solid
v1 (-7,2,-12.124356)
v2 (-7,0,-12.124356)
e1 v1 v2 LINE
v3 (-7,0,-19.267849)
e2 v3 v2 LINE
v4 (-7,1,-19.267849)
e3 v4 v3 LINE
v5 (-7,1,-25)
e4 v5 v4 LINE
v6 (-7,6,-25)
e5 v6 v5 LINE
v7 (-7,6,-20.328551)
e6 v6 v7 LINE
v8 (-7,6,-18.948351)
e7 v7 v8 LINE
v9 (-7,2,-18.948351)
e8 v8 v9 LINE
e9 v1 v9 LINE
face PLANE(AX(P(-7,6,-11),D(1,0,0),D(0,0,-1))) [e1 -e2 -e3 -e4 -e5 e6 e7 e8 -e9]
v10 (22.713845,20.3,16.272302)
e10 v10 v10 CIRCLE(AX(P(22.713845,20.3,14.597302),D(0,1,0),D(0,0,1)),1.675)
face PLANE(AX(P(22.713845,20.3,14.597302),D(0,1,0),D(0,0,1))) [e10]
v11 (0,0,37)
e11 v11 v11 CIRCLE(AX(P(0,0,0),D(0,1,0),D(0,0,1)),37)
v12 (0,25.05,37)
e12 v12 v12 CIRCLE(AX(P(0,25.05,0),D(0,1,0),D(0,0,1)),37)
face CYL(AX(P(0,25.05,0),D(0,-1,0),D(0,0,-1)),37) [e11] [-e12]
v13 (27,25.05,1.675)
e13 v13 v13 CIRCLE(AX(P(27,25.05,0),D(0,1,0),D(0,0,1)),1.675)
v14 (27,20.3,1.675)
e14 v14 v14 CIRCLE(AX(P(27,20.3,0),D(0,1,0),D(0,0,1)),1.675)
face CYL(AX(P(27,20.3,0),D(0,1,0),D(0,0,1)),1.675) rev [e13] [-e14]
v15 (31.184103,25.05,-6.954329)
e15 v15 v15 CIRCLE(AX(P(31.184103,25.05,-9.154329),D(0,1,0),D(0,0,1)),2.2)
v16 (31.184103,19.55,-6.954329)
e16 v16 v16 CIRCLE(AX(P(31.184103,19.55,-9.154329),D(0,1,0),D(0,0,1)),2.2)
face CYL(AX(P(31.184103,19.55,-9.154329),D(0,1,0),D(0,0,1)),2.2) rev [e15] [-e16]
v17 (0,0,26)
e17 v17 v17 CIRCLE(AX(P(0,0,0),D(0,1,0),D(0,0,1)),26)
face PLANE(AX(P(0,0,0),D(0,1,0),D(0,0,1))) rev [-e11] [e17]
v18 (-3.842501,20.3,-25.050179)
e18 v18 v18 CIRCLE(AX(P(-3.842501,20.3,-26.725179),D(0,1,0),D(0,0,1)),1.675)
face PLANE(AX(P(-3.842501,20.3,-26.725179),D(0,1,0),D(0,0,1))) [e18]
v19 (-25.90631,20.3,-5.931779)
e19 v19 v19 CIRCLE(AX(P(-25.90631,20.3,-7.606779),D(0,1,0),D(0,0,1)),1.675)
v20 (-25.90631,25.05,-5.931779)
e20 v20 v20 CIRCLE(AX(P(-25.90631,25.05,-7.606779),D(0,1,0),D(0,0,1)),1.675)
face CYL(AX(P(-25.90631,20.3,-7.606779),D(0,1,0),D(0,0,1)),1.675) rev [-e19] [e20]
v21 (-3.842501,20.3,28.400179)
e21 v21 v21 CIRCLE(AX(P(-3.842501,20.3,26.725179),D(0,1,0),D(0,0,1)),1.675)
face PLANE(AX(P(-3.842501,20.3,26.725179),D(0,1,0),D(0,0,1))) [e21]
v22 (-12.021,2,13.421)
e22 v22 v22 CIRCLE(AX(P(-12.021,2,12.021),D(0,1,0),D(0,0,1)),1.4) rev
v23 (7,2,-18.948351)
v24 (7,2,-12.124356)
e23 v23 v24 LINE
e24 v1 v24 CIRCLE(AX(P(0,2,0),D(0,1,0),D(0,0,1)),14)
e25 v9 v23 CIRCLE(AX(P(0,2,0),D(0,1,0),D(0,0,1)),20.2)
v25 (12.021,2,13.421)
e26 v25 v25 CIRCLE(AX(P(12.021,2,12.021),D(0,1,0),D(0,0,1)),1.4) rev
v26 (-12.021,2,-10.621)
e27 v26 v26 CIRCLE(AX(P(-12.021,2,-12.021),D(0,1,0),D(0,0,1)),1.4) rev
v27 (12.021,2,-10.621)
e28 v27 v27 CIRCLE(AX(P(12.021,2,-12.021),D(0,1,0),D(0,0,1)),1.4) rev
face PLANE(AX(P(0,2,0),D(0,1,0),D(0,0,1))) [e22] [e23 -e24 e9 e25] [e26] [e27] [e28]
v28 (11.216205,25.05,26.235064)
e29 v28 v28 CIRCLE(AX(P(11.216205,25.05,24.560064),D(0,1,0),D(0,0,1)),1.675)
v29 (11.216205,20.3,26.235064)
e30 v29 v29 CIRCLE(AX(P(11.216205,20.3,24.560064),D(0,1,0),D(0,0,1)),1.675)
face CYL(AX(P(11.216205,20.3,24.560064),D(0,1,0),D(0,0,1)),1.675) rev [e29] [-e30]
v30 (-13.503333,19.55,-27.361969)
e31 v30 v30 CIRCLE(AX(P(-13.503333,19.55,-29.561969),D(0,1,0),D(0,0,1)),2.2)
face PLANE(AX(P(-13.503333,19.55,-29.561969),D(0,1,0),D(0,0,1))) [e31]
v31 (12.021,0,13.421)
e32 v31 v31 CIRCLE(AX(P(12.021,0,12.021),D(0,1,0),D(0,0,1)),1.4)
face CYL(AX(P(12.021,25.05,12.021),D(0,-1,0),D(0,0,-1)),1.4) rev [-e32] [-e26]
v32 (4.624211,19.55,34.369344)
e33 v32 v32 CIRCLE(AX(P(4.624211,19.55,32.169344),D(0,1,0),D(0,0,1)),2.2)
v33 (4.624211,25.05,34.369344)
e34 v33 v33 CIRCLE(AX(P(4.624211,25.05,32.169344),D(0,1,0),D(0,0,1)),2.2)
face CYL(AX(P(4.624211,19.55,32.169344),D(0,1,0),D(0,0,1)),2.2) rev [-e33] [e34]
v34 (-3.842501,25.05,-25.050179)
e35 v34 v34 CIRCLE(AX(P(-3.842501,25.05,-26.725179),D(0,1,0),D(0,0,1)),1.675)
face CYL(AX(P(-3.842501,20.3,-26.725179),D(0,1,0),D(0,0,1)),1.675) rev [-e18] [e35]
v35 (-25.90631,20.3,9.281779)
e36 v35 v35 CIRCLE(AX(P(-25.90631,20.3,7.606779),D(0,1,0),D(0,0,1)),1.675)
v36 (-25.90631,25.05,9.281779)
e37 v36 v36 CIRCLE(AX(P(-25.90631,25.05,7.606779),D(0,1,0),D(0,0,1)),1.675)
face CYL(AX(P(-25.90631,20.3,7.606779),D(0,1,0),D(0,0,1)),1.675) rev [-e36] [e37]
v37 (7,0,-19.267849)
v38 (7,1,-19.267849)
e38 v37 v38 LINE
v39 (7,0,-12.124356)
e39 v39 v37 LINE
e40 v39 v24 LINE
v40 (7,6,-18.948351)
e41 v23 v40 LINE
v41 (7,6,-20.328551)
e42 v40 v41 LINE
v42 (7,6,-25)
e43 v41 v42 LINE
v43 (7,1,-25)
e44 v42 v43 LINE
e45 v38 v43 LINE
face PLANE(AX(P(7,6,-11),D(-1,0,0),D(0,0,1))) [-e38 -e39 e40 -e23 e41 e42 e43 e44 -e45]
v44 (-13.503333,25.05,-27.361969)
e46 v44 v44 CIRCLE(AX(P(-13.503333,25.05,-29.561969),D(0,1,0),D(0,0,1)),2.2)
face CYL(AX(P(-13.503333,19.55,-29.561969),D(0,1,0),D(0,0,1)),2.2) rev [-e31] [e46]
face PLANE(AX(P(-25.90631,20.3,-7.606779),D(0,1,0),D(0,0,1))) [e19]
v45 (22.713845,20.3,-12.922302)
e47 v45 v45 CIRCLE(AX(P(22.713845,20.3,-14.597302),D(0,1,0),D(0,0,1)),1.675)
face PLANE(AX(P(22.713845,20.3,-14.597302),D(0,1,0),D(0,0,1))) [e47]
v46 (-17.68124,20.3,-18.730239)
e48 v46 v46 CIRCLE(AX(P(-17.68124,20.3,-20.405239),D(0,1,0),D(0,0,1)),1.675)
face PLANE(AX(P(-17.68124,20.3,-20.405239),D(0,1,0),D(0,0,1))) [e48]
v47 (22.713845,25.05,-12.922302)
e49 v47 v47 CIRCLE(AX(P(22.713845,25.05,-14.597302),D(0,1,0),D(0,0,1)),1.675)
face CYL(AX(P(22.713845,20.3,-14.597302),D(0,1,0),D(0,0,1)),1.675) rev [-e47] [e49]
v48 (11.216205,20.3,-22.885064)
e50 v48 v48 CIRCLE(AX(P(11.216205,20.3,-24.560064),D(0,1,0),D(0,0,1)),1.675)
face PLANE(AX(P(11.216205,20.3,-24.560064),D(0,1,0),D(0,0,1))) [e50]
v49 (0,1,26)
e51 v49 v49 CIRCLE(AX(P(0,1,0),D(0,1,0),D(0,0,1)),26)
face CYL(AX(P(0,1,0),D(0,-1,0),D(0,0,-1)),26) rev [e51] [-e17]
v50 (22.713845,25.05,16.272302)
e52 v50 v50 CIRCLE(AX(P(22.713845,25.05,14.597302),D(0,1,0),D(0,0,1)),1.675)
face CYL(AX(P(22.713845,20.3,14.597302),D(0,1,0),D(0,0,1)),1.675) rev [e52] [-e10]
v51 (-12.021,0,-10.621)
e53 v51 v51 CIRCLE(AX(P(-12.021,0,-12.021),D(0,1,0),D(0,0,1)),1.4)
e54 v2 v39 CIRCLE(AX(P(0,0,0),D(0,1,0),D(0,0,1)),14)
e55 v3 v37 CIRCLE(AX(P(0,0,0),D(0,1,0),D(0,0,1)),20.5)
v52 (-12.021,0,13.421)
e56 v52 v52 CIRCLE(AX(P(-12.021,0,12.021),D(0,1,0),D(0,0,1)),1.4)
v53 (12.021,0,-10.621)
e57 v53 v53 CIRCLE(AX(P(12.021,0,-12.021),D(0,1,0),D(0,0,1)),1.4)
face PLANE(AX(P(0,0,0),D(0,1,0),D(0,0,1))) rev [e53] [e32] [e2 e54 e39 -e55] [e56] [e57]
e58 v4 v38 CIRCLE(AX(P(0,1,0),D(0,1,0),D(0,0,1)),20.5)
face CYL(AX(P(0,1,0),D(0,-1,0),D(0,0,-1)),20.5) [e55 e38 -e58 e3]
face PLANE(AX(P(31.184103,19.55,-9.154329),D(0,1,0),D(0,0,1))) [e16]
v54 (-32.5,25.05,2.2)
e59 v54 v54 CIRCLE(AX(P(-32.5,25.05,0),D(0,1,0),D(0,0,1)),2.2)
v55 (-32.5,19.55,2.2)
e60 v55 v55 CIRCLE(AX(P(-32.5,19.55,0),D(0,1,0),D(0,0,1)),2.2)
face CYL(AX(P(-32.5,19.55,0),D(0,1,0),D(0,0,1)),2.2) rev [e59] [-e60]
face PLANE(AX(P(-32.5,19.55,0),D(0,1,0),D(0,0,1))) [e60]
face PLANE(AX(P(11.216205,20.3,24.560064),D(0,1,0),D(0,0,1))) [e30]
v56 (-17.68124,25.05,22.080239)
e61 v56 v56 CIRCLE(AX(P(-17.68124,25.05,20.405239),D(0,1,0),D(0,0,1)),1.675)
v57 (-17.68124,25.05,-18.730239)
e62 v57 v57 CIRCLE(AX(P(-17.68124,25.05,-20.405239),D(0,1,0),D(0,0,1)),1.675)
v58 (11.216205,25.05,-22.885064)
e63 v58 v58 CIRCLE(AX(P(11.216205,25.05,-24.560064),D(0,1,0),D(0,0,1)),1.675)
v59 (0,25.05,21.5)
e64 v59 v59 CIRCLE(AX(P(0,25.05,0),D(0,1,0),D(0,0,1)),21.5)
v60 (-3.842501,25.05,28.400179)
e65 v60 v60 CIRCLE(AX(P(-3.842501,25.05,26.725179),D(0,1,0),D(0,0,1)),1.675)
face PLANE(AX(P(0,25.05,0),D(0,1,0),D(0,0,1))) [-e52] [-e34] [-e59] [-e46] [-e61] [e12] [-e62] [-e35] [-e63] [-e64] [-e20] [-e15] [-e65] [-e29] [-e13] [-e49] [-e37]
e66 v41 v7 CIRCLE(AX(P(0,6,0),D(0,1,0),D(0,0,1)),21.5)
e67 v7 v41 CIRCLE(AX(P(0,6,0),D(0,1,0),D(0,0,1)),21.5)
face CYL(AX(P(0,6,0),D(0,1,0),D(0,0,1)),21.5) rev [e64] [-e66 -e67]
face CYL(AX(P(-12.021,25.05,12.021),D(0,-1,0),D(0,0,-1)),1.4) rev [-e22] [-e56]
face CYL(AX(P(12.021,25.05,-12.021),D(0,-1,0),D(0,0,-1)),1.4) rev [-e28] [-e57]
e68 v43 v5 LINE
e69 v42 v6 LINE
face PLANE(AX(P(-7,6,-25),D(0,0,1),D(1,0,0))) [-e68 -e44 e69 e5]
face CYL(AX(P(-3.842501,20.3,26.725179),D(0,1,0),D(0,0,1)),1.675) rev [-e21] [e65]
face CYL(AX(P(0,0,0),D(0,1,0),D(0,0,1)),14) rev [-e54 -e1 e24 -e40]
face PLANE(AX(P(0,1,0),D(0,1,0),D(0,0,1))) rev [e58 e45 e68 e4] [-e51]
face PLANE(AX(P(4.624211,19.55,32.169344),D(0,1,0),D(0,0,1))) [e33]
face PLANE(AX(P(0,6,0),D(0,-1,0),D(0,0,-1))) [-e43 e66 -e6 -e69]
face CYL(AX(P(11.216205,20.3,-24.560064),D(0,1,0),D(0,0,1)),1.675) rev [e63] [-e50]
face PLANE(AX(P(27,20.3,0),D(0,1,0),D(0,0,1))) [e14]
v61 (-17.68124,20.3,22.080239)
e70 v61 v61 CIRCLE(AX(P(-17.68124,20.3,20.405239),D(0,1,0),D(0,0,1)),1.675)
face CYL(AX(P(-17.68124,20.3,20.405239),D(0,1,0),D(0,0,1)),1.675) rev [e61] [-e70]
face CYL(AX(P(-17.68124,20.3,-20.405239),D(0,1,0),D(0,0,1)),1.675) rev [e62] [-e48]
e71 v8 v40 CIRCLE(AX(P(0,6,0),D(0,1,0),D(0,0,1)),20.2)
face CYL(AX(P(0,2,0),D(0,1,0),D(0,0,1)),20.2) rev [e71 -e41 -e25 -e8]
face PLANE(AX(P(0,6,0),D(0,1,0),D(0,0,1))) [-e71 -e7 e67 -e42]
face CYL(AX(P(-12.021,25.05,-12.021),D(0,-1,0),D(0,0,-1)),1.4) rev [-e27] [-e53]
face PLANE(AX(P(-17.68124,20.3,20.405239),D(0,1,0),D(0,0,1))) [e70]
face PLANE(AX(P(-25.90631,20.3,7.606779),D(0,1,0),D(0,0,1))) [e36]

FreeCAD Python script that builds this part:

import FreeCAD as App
import Part
import Sketcher
Q = App.Units.Quantity


def add_polygon(sketch, points):
    """Adds a closed chain of lines whose ends are joined by coincident constraints."""
    first, n = sketch.GeometryCount, len(points)
    for a, b in zip(points, points[1:] + points[:1]):
        sketch.addGeometry(Part.LineSegment(App.Vector(*a, 0), App.Vector(*b, 0)), False)
    for i in range(n):
        sketch.addConstraint(Sketcher.Constraint("Coincident", first + i, 2, first + (i + 1) % n, 1))

doc = App.newDocument("Part")
body = doc.addObject("PartDesign::Body", "Body")

sketch1 = body.newObject("Sketcher::SketchObject", "Sketch")
sketch1.AttachmentSupport = (doc.getObject("XZ_Plane"), [""])
sketch1.MapMode = "FlatFace"
sketch1.addGeometry(Part.Circle(App.Vector(0, 0, 0), App.Vector(0, 0, 1), 37), False)
sketch1.addConstraint(Sketcher.Constraint("Coincident", 0, 3, -1, 1))
sketch1.addConstraint(Sketcher.Constraint("Diameter", 0, Q("74 mm")))
pad1 = body.newObject("PartDesign::Pad", "Pad")
pad1.Profile = sketch1
pad1.Length = 25.05
pad1.Reversed = True

sketch2 = body.newObject("Sketcher::SketchObject", "Sketch001")
sketch2.AttachmentSupport = (doc.getObject("XZ_Plane"), [""])
sketch2.MapMode = "FlatFace"
sketch2.AttachmentOffset = App.Placement(App.Vector(0, 0, -25.05), App.Rotation())
sketch2.addGeometry(Part.Circle(App.Vector(0, 0, 0), App.Vector(0, 0, 1), 22), False)
sketch2.addConstraint(Sketcher.Constraint("Coincident", 0, 3, -1, 1))
sketch2.addConstraint(Sketcher.Constraint("Diameter", 0, Q("43 mm")))
pocket1 = body.newObject("PartDesign::Pocket", "Pocket")
pocket1.Profile = sketch2
pocket1.Length = 19.05
pocket1.Reversed = True

sketch3 = body.newObject("Sketcher::SketchObject", "Sketch002")
sketch3.AttachmentSupport = (doc.getObject("XZ_Plane"), [""])
sketch3.MapMode = "FlatFace"
sketch3.AttachmentOffset = App.Placement(App.Vector(0, 0, -6), App.Rotation())
sketch3.addGeometry(Part.Circle(App.Vector(0, 0, 0), App.Vector(0, 0, 1), 20), False)
sketch3.addConstraint(Sketcher.Constraint("Coincident", 0, 3, -1, 1))
sketch3.addConstraint(Sketcher.Constraint("Diameter", 0, Q("40.4 mm")))
pocket2 = body.newObject("PartDesign::Pocket", "Pocket001")
pocket2.Profile = sketch3
pocket2.Length = 4
pocket2.Reversed = True

sketch4 = body.newObject("Sketcher::SketchObject", "Sketch003")
sketch4.AttachmentSupport = (doc.getObject("XZ_Plane"), [""])
sketch4.MapMode = "FlatFace"
sketch4.AttachmentOffset = App.Placement(App.Vector(0, 0, -2), App.Rotation())
sketch4.addGeometry(Part.Circle(App.Vector(0, 0, 0), App.Vector(0, 0, 1), 14), False)
sketch4.addConstraint(Sketcher.Constraint("Coincident", 0, 3, -1, 1))
sketch4.addConstraint(Sketcher.Constraint("Diameter", 0, Q("28 mm")))
pocket3 = body.newObject("PartDesign::Pocket", "Pocket002")
pocket3.Profile = sketch4
pocket3.Type = "ThroughAll"
pocket3.Reversed = True

sketch5 = body.newObject("Sketcher::SketchObject", "Sketch004")
sketch5.AttachmentSupport = (doc.getObject("XZ_Plane"), [""])
sketch5.MapMode = "FlatFace"
add_polygon(sketch5, [(-7, -25), (-7, -11), (7, -11), (7, -25)])
sketch5.addConstraint(Sketcher.Constraint("Vertical", 0))
sketch5.addConstraint(Sketcher.Constraint("Horizontal", 1))
sketch5.addConstraint(Sketcher.Constraint("Vertical", 2))
sketch5.addConstraint(Sketcher.Constraint("Horizontal", 3))
sketch5.addConstraint(Sketcher.Constraint("Equal", 3, 0))
sketch5.addConstraint(Sketcher.Constraint("DistanceX", 1, 1, 1, 2, Q("14 mm")))
sketch5.addConstraint(Sketcher.Constraint("DistanceX", 0, 2, -1, 1, Q("7 mm")))
sketch5.addConstraint(Sketcher.Constraint("DistanceY", 0, 2, -1, 1, Q("11 mm")))
pocket4 = body.newObject("PartDesign::Pocket", "Pocket003")
pocket4.Profile = sketch5
pocket4.Length = 6

sketch6 = body.newObject("Sketcher::SketchObject", "Sketch005")
sketch6.AttachmentSupport = (doc.getObject("XZ_Plane"), [""])
sketch6.MapMode = "FlatFace"
sketch6.addGeometry(Part.Circle(App.Vector(12, -12, 0), App.Vector(0, 0, 1), 1.4), False)
sketch6.addGeometry(Part.Circle(App.Vector(12, 12, 0), App.Vector(0, 0, 1), 1.4), False)
sketch6.addGeometry(Part.Circle(App.Vector(-12, 12, 0), App.Vector(0, 0, 1), 1.4), False)
sketch6.addGeometry(Part.Circle(App.Vector(-12, -12, 0), App.Vector(0, 0, 1), 1.4), False)
sketch6.addConstraint(Sketcher.Constraint("Equal", 0, 1))
sketch6.addConstraint(Sketcher.Constraint("Equal", 1, 2))
sketch6.addConstraint(Sketcher.Constraint("Equal", 2, 3))
sketch6.addConstraint(Sketcher.Constraint("Symmetric", 0, 3, 2, 3, -1, 1))
sketch6.addConstraint(Sketcher.Constraint("Symmetric", 1, 3, 3, 3, -1, 1))
sketch6.addConstraint(Sketcher.Constraint("Symmetric", 1, 3, 2, 3, -2))
sketch6.addConstraint(Sketcher.Constraint("Diameter", 0, Q("2.8 mm")))
sketch6.addConstraint(Sketcher.Constraint("DistanceX", -1, 1, 0, 3, Q("12.021 mm")))
sketch6.addConstraint(Sketcher.Constraint("DistanceY", 0, 3, -1, 1, Q("12.021 mm")))
pocket5 = body.newObject("PartDesign::Pocket", "Pocket004")
pocket5.Profile = sketch6
pocket5.Type = "ThroughAll"

sketch7 = body.newObject("Sketcher::SketchObject", "Sketch006")
sketch7.AttachmentSupport = (doc.getObject("XZ_Plane"), [""])
sketch7.MapMode = "FlatFace"
sketch7.AttachmentOffset = App.Placement(App.Vector(0, 0, -25.05), App.Rotation())
sketch7.addGeometry(Part.Circle(App.Vector(27, 0, 0), App.Vector(0, 0, 1), 1.7), False)
sketch7.addGeometry(Part.Circle(App.Vector(22.7, 14.6, 0), App.Vector(0, 0, 1), 1.7), False)
sketch7.addGeometry(Part.Circle(App.Vector(11.2, 24.6, 0), App.Vector(0, 0, 1), 1.7), False)
sketch7.addGeometry(Part.Circle(App.Vector(-3.8, 26.7, 0), App.Vector(0, 0, 1), 1.7), False)
sketch7.addGeometry(Part.Circle(App.Vector(-17.7, 20.4, 0), App.Vector(0, 0, 1), 1.7), False)
sketch7.addGeometry(Part.Circle(App.Vector(-25.9, 7.6, 0), App.Vector(0, 0, 1), 1.7), False)
sketch7.addGeometry(Part.Circle(App.Vector(-25.9, -7.6, 0), App.Vector(0, 0, 1), 1.7), False)
sketch7.addGeometry(Part.Circle(App.Vector(-17.7, -20.4, 0), App.Vector(0, 0, 1), 1.7), False)
sketch7.addGeometry(Part.Circle(App.Vector(-3.8, -26.7, 0), App.Vector(0, 0, 1), 1.7), False)
sketch7.addGeometry(Part.Circle(App.Vector(11.2, -24.6, 0), App.Vector(0, 0, 1), 1.7), False)
sketch7.addGeometry(Part.Circle(App.Vector(22.7, -14.6, 0), App.Vector(0, 0, 1), 1.7), False)
sketch7.addConstraint(Sketcher.Constraint("Equal", 0, 1))
sketch7.addConstraint(Sketcher.Constraint("Equal", 1, 2))
sketch7.addConstraint(Sketcher.Constraint("Equal", 2, 3))
sketch7.addConstraint(Sketcher.Constraint("Equal", 3, 4))
sketch7.addConstraint(Sketcher.Constraint("Equal", 4, 5))
sketch7.addConstraint(Sketcher.Constraint("Equal", 5, 6))
sketch7.addConstraint(Sketcher.Constraint("Equal", 6, 7))
sketch7.addConstraint(Sketcher.Constraint("Equal", 7, 8))
sketch7.addConstraint(Sketcher.Constraint("Equal", 8, 9))
sketch7.addConstraint(Sketcher.Constraint("Equal", 9, 10))
sketch7.addConstraint(Sketcher.Constraint("Symmetric", 5, 3, 6, 3, -1))
sketch7.addConstraint(Sketcher.Constraint("Symmetric", 4, 3, 7, 3, -1))
sketch7.addConstraint(Sketcher.Constraint("Symmetric", 3, 3, 8, 3, -1))
sketch7.addConstraint(Sketcher.Constraint("Symmetric", 2, 3, 9, 3, -1))
sketch7.addConstraint(Sketcher.Constraint("Symmetric", 1, 3, 10, 3, -1))
sketch7.addConstraint(Sketcher.Constraint("PointOnObject", 0, 3, -1))
sketch7.addConstraint(Sketcher.Constraint("Diameter", 0, Q("3.35 mm")))
sketch7.addConstraint(Sketcher.Constraint("DistanceX", -1, 1, 0, 3, Q("27 mm")))
sketch7.addConstraint(Sketcher.Constraint("DistanceX", 3, 3, -1, 1, Q("3.842501 mm")))
sketch7.addConstraint(Sketcher.Constraint("DistanceY", 5, 3, 3, 3, Q("19.1184 mm")))
sketch7.addConstraint(Sketcher.Constraint("DistanceY", -1, 1, 3, 3, Q("26.725179 mm")))
sketch7.addConstraint(Sketcher.Constraint("DistanceX", 4, 3, -1, 1, Q("17.68124 mm")))
sketch7.addConstraint(Sketcher.Constraint("DistanceY", -1, 1, 4, 3, Q("20.405239 mm")))
sketch7.addConstraint(Sketcher.Constraint("DistanceX", 5, 3, -1, 1, Q("25.90631 mm")))
sketch7.addConstraint(Sketcher.Constraint("DistanceX", 2, 3, 1, 3, Q("11.49764 mm")))
sketch7.addConstraint(Sketcher.Constraint("DistanceY", 1, 3, 2, 3, Q("9.962762 mm")))
sketch7.addConstraint(Sketcher.Constraint("DistanceY", 6, 3, 1, 3, Q("22.204081 mm")))
sketch7.addConstraint(Sketcher.Constraint("DistanceX", -1, 1, 1, 3, Q("22.713845 mm")))
pocket6 = body.newObject("PartDesign::Pocket", "Pocket005")
pocket6.Profile = sketch7
pocket6.Length = 4.75
pocket6.Reversed = True

sketch8 = body.newObject("Sketcher::SketchObject", "Sketch007")
sketch8.AttachmentSupport = (doc.getObject("XZ_Plane"), [""])
sketch8.MapMode = "FlatFace"
sketch8.AttachmentOffset = App.Placement(App.Vector(0, 0, -25.05), App.Rotation())
sketch8.addGeometry(Part.Circle(App.Vector(31.2, -9.2, 0), App.Vector(0, 0, 1), 2.2), False)
sketch8.addGeometry(Part.Circle(App.Vector(-13.5, -29.6, 0), App.Vector(0, 0, 1), 2.2), False)
sketch8.addGeometry(Part.Circle(App.Vector(-32.5, 0, 0), App.Vector(0, 0, 1), 2.2), False)
sketch8.addGeometry(Part.Circle(App.Vector(4.6, 32.2, 0), App.Vector(0, 0, 1), 2.2), False)
sketch8.addConstraint(Sketcher.Constraint("Equal", 0, 1))
sketch8.addConstraint(Sketcher.Constraint("Equal", 1, 2))
sketch8.addConstraint(Sketcher.Constraint("Equal", 2, 3))
sketch8.addConstraint(Sketcher.Constraint("PointOnObject", 2, 3, -1))
sketch8.addConstraint(Sketcher.Constraint("Diameter", 0, Q("4.4 mm")))
sketch8.addConstraint(Sketcher.Constraint("DistanceX", 2, 3, -1, 1, Q("32.5 mm")))
sketch8.addConstraint(Sketcher.Constraint("DistanceY", 0, 3, -1, 1, Q("9.154329 mm")))
sketch8.addConstraint(Sketcher.Constraint("DistanceY", 1, 3, -1, 1, Q("29.561969 mm")))
sketch8.addConstraint(Sketcher.Constraint("DistanceX", -1, 1, 3, 3, Q("4.624211 mm")))
sketch8.addConstraint(Sketcher.Constraint("DistanceX", 3, 3, 0, 3, Q("26.559891 mm")))
sketch8.addConstraint(Sketcher.Constraint("DistanceX", 1, 3, -1, 1, Q("13.503333 mm")))
sketch8.addConstraint(Sketcher.Constraint("DistanceY", -1, 1, 3, 3, Q("32.169344 mm")))
pocket7 = body.newObject("PartDesign::Pocket", "Pocket006")
pocket7.Profile = sketch8
pocket7.Length = 5.5
pocket7.Reversed = True

sketch9 = body.newObject("Sketcher::SketchObject", "Sketch008")
sketch9.AttachmentSupport = (doc.getObject("XZ_Plane"), [""])
sketch9.MapMode = "FlatFace"
sketch9.addGeometry(Part.Circle(App.Vector(0, 0, 0), App.Vector(0, 0, 1), 26), False)
sketch9.addGeometry(Part.Circle(App.Vector(0, 0, 0), App.Vector(0, 0, 1), 20), False)
sketch9.addConstraint(Sketcher.Constraint("Coincident", 0, 3, -1, 1))
sketch9.addConstraint(Sketcher.Constraint("Coincident", 1, 3, -1, 1))
sketch9.addConstraint(Sketcher.Constraint("Diameter", 0, Q("52 mm")))
sketch9.addConstraint(Sketcher.Constraint("Diameter", 1, Q("41 mm")))
pocket8 = body.newObject("PartDesign::Pocket", "Pocket007")
pocket8.Profile = sketch9
pocket8.Length = 1

doc.recompute()
